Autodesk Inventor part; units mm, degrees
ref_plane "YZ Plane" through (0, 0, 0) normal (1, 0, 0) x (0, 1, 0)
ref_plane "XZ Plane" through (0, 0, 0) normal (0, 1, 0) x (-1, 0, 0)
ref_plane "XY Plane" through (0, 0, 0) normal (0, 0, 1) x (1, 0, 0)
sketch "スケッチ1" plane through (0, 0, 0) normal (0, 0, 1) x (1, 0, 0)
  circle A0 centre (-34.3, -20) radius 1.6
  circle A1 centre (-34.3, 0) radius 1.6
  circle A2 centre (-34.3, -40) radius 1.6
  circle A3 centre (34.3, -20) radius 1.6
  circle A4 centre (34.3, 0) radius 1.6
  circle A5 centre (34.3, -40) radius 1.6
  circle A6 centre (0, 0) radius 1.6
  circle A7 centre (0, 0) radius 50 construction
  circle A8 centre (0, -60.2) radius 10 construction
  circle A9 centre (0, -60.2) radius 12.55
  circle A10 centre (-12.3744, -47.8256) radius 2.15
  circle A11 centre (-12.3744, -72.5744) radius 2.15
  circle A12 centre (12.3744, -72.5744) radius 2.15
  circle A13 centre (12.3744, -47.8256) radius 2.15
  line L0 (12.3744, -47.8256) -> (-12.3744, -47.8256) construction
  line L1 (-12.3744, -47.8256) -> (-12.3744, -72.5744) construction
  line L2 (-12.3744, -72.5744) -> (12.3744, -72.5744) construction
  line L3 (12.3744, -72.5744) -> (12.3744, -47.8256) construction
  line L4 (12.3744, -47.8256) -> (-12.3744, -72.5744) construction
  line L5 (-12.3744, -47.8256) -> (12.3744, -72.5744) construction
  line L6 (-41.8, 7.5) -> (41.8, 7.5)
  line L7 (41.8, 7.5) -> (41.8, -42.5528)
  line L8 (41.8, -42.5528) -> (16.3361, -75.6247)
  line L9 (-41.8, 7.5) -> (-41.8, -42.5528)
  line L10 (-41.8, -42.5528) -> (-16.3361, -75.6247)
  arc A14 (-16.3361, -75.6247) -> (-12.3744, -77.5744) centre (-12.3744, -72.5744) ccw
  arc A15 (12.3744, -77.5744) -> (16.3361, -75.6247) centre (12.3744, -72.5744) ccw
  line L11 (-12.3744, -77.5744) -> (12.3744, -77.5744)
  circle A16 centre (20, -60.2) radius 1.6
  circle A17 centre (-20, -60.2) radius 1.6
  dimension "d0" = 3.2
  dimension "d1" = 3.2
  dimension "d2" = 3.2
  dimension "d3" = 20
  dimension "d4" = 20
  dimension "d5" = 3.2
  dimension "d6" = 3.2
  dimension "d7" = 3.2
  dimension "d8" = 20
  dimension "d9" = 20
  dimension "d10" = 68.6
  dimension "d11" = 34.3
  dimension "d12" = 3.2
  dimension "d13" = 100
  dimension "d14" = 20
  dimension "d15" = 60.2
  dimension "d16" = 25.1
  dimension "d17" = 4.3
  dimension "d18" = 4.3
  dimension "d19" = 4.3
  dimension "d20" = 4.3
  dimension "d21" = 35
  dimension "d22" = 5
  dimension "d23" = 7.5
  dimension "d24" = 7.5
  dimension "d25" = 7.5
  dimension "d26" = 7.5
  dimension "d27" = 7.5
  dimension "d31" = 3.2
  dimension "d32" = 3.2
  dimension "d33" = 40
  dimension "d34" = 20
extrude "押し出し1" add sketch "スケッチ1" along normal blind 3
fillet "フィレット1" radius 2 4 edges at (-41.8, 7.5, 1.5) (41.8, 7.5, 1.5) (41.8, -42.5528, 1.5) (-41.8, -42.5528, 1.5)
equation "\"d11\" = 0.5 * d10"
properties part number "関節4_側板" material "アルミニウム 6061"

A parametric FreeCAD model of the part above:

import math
import FreeCAD as App
import Part
import Sketcher


def edges_at(feature, points):
    """Names of the edges that pass closest to the given points."""
    edges = feature.Shape.Edges
    near = lambda p: min(range(len(edges)), key=lambda i: edges[i].distToShape(Part.Vertex(*p))[0])
    return sorted({f"Edge{near(p) + 1}" for p in points})

doc = App.newDocument("Part")
params = doc.addObject("Spreadsheet::Sheet", "Params")
for row, (alias, value) in enumerate([
    ("sketch1_radius", "5 mm"),
    ("sketch1_radius2", "5 mm"),
    ("sketch1_diameter", "4.3 mm"),
    ("sketch1_diameter2", "3.2 mm"),
    ("sketch1_diameter3", "25.1 mm"),
    ("pad1_length", "3 mm"),
    ("fillet_radius", "2 mm"),
], start=1):
    params.set(f"A{row}", alias)
    params.set(f"B{row}", "=" + value)
    params.setAlias(f"B{row}", alias)

body = doc.addObject("PartDesign::Body", "Body")

sketch1 = body.newObject("Sketcher::SketchObject", "Sketch")
sketch1.AttachmentSupport = (doc.getObject("XY_Plane"), [""])
sketch1.MapMode = "FlatFace"
sketch1.addGeometry([
    Part.LineSegment(App.Vector(41.8, 7.5, 0), App.Vector(-41.8, 7.5, 0)),
    Part.LineSegment(App.Vector(-41.8, 7.5, 0), App.Vector(-41.8, -42.5528, 0)),
    Part.LineSegment(App.Vector(-41.8, -42.5528, 0), App.Vector(-16.3361, -75.6247, 0)),
    Part.ArcOfCircle(Part.Circle(App.Vector(-12.3744, -72.5744, 0), App.Vector(0, 0, 1), 4.99994), math.radians(-142.405626), math.radians(-90)),
    Part.LineSegment(App.Vector(-12.3744, -77.5744, 0), App.Vector(12.3744, -77.5744, 0)),
    Part.ArcOfCircle(Part.Circle(App.Vector(12.3744, -72.5744, 0), App.Vector(0, 0, 1), 5), math.radians(-90), math.radians(-37.594374)),
    Part.LineSegment(App.Vector(16.3361, -75.6247, 0), App.Vector(41.8, -42.5528, 0)),
    Part.LineSegment(App.Vector(41.8, -42.5528, 0), App.Vector(41.8, 7.5, 0)),
    Part.Circle(App.Vector(-12.3744, -72.5744, 0), App.Vector(0, 0, 1), 2.15),
    Part.Circle(App.Vector(-20, -60.2, 0), App.Vector(0, 0, 1), 1.6),
    Part.Circle(App.Vector(0, -60.2, 0), App.Vector(0, 0, 1), 12.55),
    Part.Circle(App.Vector(-34.3, -40, 0), App.Vector(0, 0, 1), 1.6),
    Part.Circle(App.Vector(-12.3744, -47.8256, 0), App.Vector(0, 0, 1), 2.15),
    Part.Circle(App.Vector(12.3744, -72.5744, 0), App.Vector(0, 0, 1), 2.15),
    Part.Circle(App.Vector(20, -60.2, 0), App.Vector(0, 0, 1), 1.6),
    Part.Circle(App.Vector(12.3744, -47.8256, 0), App.Vector(0, 0, 1), 2.15),
    Part.Circle(App.Vector(34.3, -40, 0), App.Vector(0, 0, 1), 1.6),
    Part.Circle(App.Vector(-34.3, -20, 0), App.Vector(0, 0, 1), 1.6),
    Part.Circle(App.Vector(-34.3, 0, 0), App.Vector(0, 0, 1), 1.6),
    Part.Circle(App.Vector(0, 0, 0), App.Vector(0, 0, 1), 1.6),
    Part.Circle(App.Vector(34.3, -20, 0), App.Vector(0, 0, 1), 1.6),
    Part.Circle(App.Vector(34.3, 0, 0), App.Vector(0, 0, 1), 1.6),
], False)
sketch1.addConstraint([
    Sketcher.Constraint("Coincident", 0, 2, 1, 1),
    Sketcher.Constraint("Coincident", 1, 2, 2, 1),
    Sketcher.Constraint("Coincident", 2, 2, 3, 1),
    Sketcher.Constraint("Coincident", 3, 2, 4, 1),
    Sketcher.Constraint("Coincident", 4, 2, 5, 1),
    Sketcher.Constraint("Coincident", 5, 2, 6, 1),
    Sketcher.Constraint("Coincident", 6, 2, 7, 1),
    Sketcher.Constraint("Coincident", 7, 2, 0, 1),
    Sketcher.Constraint("Horizontal", 0),
    Sketcher.Constraint("Vertical", 1),
    Sketcher.Constraint("Horizontal", 4),
    Sketcher.Constraint("Vertical", 7),
    Sketcher.Constraint("Coincident", 19, 3, -1, 1),
    Sketcher.Constraint("Coincident", 8, 3, 3, 3),
    Sketcher.Constraint("Coincident", 13, 3, 5, 3),
    Sketcher.Constraint("PointOnObject", 10, 3, -2),
    Sketcher.Constraint("PointOnObject", 18, 3, -1),
    Sketcher.Constraint("PointOnObject", 21, 3, -1),
    Sketcher.Constraint("Radius", 3, 5.0),
    Sketcher.Constraint("Radius", 5, 5.0),
    Sketcher.Constraint("Diameter", 8, 4.3),
    Sketcher.Constraint("Diameter", 9, 3.2),
    Sketcher.Constraint("Diameter", 10, 25.1),
    Sketcher.Constraint("Diameter", 11, 3.2),
    Sketcher.Constraint("Diameter", 12, 4.3),
    Sketcher.Constraint("Diameter", 13, 4.3),
    Sketcher.Constraint("Diameter", 14, 3.2),
    Sketcher.Constraint("Diameter", 15, 4.3),
    Sketcher.Constraint("Diameter", 16, 3.2),
    Sketcher.Constraint("Diameter", 17, 3.2),
    Sketcher.Constraint("Diameter", 18, 3.2),
    Sketcher.Constraint("Diameter", 19, 3.2),
    Sketcher.Constraint("Diameter", 20, 3.2),
    Sketcher.Constraint("Diameter", 21, 3.2),
    Sketcher.Constraint("DistanceX", 9, 3, -1, 1, 20.0),
    Sketcher.Constraint("DistanceY", 11, 3, -1, 1, 40.0),
    Sketcher.Constraint("DistanceX", -1, 1, 14, 3, 20.0),
    Sketcher.Constraint("DistanceY", 16, 3, -1, 1, 40.0),
    Sketcher.Constraint("DistanceY", 17, 3, -1, 1, 20.0),
    Sketcher.Constraint("DistanceY", 20, 3, -1, 1, 20.0),
    Sketcher.Constraint("DistanceY", 9, 3, -1, 1, 60.2),
    Sketcher.Constraint("DistanceY", 10, 3, -1, 1, 60.2),
    Sketcher.Constraint("DistanceX", 11, 3, -1, 1, 34.3),
    Sketcher.Constraint("DistanceY", 14, 3, -1, 1, 60.2),
    Sketcher.Constraint("DistanceX", -1, 1, 16, 3, 34.3),
    Sketcher.Constraint("DistanceX", 17, 3, -1, 1, 34.3),
    Sketcher.Constraint("DistanceX", 18, 3, -1, 1, 34.3),
    Sketcher.Constraint("DistanceX", -1, 1, 20, 3, 34.3),
    Sketcher.Constraint("DistanceX", -1, 1, 21, 3, 34.3),
    Sketcher.Constraint("DistanceY", -1, 1, 0, 2, 7.5),
    Sketcher.Constraint("DistanceX", 0, 2, 18, 3, 7.5),
    Sketcher.Constraint("DistanceX", 16, 3, 6, 2, 7.5),
    Sketcher.Constraint("DistanceX", 4, 1, 4, 2, 24.7488),
    Sketcher.Constraint("DistanceY", 1, 2, 1, 1, 50.0528),
    Sketcher.Constraint("DistanceY", 7, 1, 7, 2, 50.0528),
    Sketcher.Constraint("DistanceX", 2, 2, -1, 1, 16.336),
    Sketcher.Constraint("DistanceY", 2, 2, 12, 3, 27.799),
    Sketcher.Constraint("DistanceY", 5, 2, 6, 2, 33.072),
    Sketcher.Constraint("Distance", 2, 41.7392),
    Sketcher.Constraint("Distance", 6, 41.7392),
    Sketcher.Constraint("DistanceX", 3, 3, -1, 1, 12.3744),
    Sketcher.Constraint("DistanceX", 12, 3, -1, 1, 12.3744),
    Sketcher.Constraint("DistanceX", -1, 1, 15, 3, 12.3744),
    Sketcher.Constraint("DistanceY", 15, 3, -1, 1, 47.8256),
    Sketcher.Constraint("DistanceX", 3, 2, -1, 1, 12.3744),
])
sketch1.setExpression("Constraints[18]", "Params.sketch1_radius")
sketch1.setExpression("Constraints[19]", "Params.sketch1_radius2")
sketch1.setExpression("Constraints[20]", "Params.sketch1_diameter")
sketch1.setExpression("Constraints[21]", "Params.sketch1_diameter2")
sketch1.setExpression("Constraints[22]", "Params.sketch1_diameter3")
pad1 = body.newObject("PartDesign::Pad", "Pad")
pad1.Profile = sketch1
pad1.setExpression("Length", "Params.pad1_length")
doc.recompute()

fillet = body.newObject("PartDesign::Fillet", "Fillet")
fillet.Base = (pad1, edges_at(pad1, [
    (-41.8, 7.5, 1.5),
    (41.8, 7.5, 1.5),
    (41.8, -42.553, 1.5),
    (-41.8, -42.553, 1.5),
]))
fillet.setExpression("Radius", "Params.fillet_radius")

doc.recompute()
